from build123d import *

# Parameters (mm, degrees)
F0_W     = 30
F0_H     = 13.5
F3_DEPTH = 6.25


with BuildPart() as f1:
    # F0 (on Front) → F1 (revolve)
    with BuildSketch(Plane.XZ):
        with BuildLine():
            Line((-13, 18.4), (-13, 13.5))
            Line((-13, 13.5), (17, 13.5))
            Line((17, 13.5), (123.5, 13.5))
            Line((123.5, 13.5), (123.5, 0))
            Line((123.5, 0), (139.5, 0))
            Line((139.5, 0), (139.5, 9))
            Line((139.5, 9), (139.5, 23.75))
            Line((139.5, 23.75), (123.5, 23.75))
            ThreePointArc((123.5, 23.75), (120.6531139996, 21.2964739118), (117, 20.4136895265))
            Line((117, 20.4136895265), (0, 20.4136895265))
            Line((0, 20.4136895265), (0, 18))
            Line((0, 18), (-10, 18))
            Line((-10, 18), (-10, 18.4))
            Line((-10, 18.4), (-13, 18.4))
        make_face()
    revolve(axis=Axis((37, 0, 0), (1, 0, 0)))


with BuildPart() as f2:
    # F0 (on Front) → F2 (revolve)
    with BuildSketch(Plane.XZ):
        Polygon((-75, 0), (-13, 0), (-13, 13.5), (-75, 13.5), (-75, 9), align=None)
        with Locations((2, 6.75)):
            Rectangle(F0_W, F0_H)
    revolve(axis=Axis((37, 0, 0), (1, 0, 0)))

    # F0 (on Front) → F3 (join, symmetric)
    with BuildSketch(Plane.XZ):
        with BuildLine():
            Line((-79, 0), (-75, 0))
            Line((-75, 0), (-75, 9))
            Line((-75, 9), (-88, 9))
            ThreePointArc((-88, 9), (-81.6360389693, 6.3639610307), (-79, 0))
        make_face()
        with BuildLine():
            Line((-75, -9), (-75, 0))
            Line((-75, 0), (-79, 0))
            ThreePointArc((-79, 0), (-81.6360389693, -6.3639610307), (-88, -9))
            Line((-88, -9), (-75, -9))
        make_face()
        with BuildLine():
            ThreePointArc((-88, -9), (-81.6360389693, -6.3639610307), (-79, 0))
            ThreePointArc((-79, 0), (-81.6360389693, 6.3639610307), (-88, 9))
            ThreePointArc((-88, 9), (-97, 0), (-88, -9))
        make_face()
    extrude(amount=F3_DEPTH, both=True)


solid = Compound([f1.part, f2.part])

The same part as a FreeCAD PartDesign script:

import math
import FreeCAD as App
import Part
import Sketcher
Q = App.Units.Quantity


def add_polygon(sketch, points):
    """Adds a closed chain of lines whose ends are joined by coincident constraints."""
    first, n = sketch.GeometryCount, len(points)
    for a, b in zip(points, points[1:] + points[:1]):
        sketch.addGeometry(Part.LineSegment(App.Vector(*a, 0), App.Vector(*b, 0)), False)
    for i in range(n):
        sketch.addConstraint(Sketcher.Constraint("Coincident", first + i, 2, first + (i + 1) % n, 1))

doc = App.newDocument("Part")
body = doc.addObject("PartDesign::Body", "Body")

# Sketch on XZ plane
sketch1 = doc.addObject("Sketcher::SketchObject", "Sketch")
body.addObject(sketch1)
sketch1.AttachmentSupport = (doc.XZ_Plane, [""])
sketch1.MapMode = "FlatFace"
sketch1.addGeometry(Part.LineSegment(App.Vector(-13, 18.4, 0), App.Vector(-13, 13.5, 0)), False)
sketch1.addGeometry(Part.LineSegment(App.Vector(-13, 13.5, 0), App.Vector(123.5, 13.5, 0)), False)
sketch1.addGeometry(Part.LineSegment(App.Vector(123.5, 13.5, 0), App.Vector(123.5, 0, 0)), False)
sketch1.addGeometry(Part.LineSegment(App.Vector(123.5, 0, 0), App.Vector(139.5, 0, 0)), False)
sketch1.addGeometry(Part.LineSegment(App.Vector(139.5, 0, 0), App.Vector(139.5, 23.75, 0)), False)
sketch1.addGeometry(Part.LineSegment(App.Vector(139.5, 23.75, 0), App.Vector(123.5, 23.75, 0)), False)
sketch1.addGeometry(Part.ArcOfCircle(Part.Circle(App.Vector(117, 28.41, 0), App.Vector(0, 0, 1), 8), math.radians(-90), math.radians(-36)), False)
sketch1.addGeometry(Part.LineSegment(App.Vector(117, 20.41, 0), App.Vector(0, 20.41, 0)), False)
sketch1.addGeometry(Part.LineSegment(App.Vector(0, 20.41, 0), App.Vector(0, 18, 0)), False)
sketch1.addGeometry(Part.LineSegment(App.Vector(0, 18, 0), App.Vector(-10, 18, 0)), False)
sketch1.addGeometry(Part.LineSegment(App.Vector(-10, 18, 0), App.Vector(-10, 18.4, 0)), False)
sketch1.addGeometry(Part.LineSegment(App.Vector(-10, 18.4, 0), App.Vector(-13, 18.4, 0)), False)
sketch1.addConstraint(Sketcher.Constraint("Coincident", 0, 2, 1, 1))
sketch1.addConstraint(Sketcher.Constraint("Coincident", 1, 2, 2, 1))
sketch1.addConstraint(Sketcher.Constraint("Coincident", 2, 2, 3, 1))
sketch1.addConstraint(Sketcher.Constraint("Coincident", 3, 2, 4, 1))
sketch1.addConstraint(Sketcher.Constraint("Coincident", 4, 2, 5, 1))
sketch1.addConstraint(Sketcher.Constraint("Coincident", 5, 2, 6, 2))
sketch1.addConstraint(Sketcher.Constraint("Tangent", 6, 1, 7, 1))
sketch1.addConstraint(Sketcher.Constraint("Coincident", 7, 2, 8, 1))
sketch1.addConstraint(Sketcher.Constraint("Coincident", 8, 2, 9, 1))
sketch1.addConstraint(Sketcher.Constraint("Coincident", 9, 2, 10, 1))
sketch1.addConstraint(Sketcher.Constraint("Coincident", 10, 2, 11, 1))
sketch1.addConstraint(Sketcher.Constraint("Coincident", 11, 2, 0, 1))
sketch1.addConstraint(Sketcher.Constraint("Vertical", 0))
sketch1.addConstraint(Sketcher.Constraint("Horizontal", 1))
sketch1.addConstraint(Sketcher.Constraint("Vertical", 2))
sketch1.addConstraint(Sketcher.Constraint("Horizontal", 3))
sketch1.addConstraint(Sketcher.Constraint("Vertical", 4))
sketch1.addConstraint(Sketcher.Constraint("Horizontal", 5))
sketch1.addConstraint(Sketcher.Constraint("Horizontal", 7))
sketch1.addConstraint(Sketcher.Constraint("Vertical", 8))
sketch1.addConstraint(Sketcher.Constraint("Horizontal", 9))
sketch1.addConstraint(Sketcher.Constraint("Vertical", 10))
sketch1.addConstraint(Sketcher.Constraint("Horizontal", 11))
sketch1.addConstraint(Sketcher.Constraint("PointOnObject", 2, 2, -1))
sketch1.addConstraint(Sketcher.Constraint("PointOnObject", 7, 2, -2))
sketch1.addConstraint(Sketcher.Constraint("Vertical", 2, 2, 5, 2))
sketch1.addConstraint(Sketcher.Constraint("Radius", 6, Q("8 mm")))
sketch1.addConstraint(Sketcher.Constraint("DistanceX", 3, 1, 3, 2, Q("16 mm")))
sketch1.addConstraint(Sketcher.Constraint("DistanceX", 7, 2, 7, 1, Q("117 mm")))
sketch1.addConstraint(Sketcher.Constraint("DistanceX", 9, 2, 9, 1, Q("10 mm")))
sketch1.addConstraint(Sketcher.Constraint("DistanceX", 11, 2, 11, 1, Q("3 mm")))
sketch1.addConstraint(Sketcher.Constraint("DistanceX", 1, 1, 1, 2, Q("136.5 mm")))
sketch1.addConstraint(Sketcher.Constraint("DistanceY", 0, 2, 0, 1, Q("4.9 mm")))
sketch1.addConstraint(Sketcher.Constraint("DistanceY", 2, 2, 2, 1, Q("13.5 mm")))
sketch1.addConstraint(Sketcher.Constraint("DistanceY", 10, 1, 10, 2, Q("0.4 mm")))
sketch1.addConstraint(Sketcher.Constraint("DistanceY", 4, 1, 4, 2, Q("23.75 mm")))
revolution = doc.addObject("PartDesign::Revolution", "Revolution")
body.addObject(revolution)
revolution.Profile = sketch1
revolution.ReferenceAxis = (sketch1, ["H_Axis"])
revolution.Angle = 360
body2 = doc.addObject("PartDesign::Body", "Body001")

# Sketch on XZ plane
sketch2 = doc.addObject("Sketcher::SketchObject", "Sketch001")
body2.addObject(sketch2)
sketch2.AttachmentSupport = (doc.getObject("XZ_Plane001"), [""])
sketch2.MapMode = "FlatFace"
add_polygon(sketch2, [(-75, 0), (17, 0), (17, 14), (-75, 14)])  # lines 0-3
sketch2.addConstraint(Sketcher.Constraint("Horizontal", 0))
sketch2.addConstraint(Sketcher.Constraint("Vertical", 1))
sketch2.addConstraint(Sketcher.Constraint("Horizontal", 2))
sketch2.addConstraint(Sketcher.Constraint("Vertical", 3))
sketch2.addConstraint(Sketcher.Constraint("PointOnObject", 0, 2, -1))
sketch2.addConstraint(Sketcher.Constraint("DistanceX", 0, 1, 0, 2, Q("92 mm")))
sketch2.addConstraint(Sketcher.Constraint("DistanceY", 1, 1, 1, 2, Q("13.5 mm")))
sketch2.addConstraint(Sketcher.Constraint("DistanceX", -1, 1, 0, 2, Q("17 mm")))
revolution2 = doc.addObject("PartDesign::Revolution", "Revolution001")
body2.addObject(revolution2)
revolution2.Profile = sketch2
revolution2.ReferenceAxis = (sketch2, ["H_Axis"])
revolution2.Angle = 360

# Sketch on XZ plane
sketch3 = doc.addObject("Sketcher::SketchObject", "Sketch002")
body2.addObject(sketch3)
sketch3.AttachmentSupport = (doc.getObject("XZ_Plane001"), [""])
sketch3.MapMode = "FlatFace"
sketch3.addGeometry(Part.LineSegment(App.Vector(-75, 9, 0), App.Vector(-88, 9, 0)), False)
sketch3.addGeometry(Part.ArcOfCircle(Part.Circle(App.Vector(-88, 0, 0), App.Vector(0, 0, 1), 9), math.radians(90), math.radians(270)), False)
sketch3.addGeometry(Part.LineSegment(App.Vector(-88, -9, 0), App.Vector(-75, -9, 0)), False)
sketch3.addGeometry(Part.LineSegment(App.Vector(-75, -9, 0), App.Vector(-75, 9, 0)), False)
sketch3.addConstraint(Sketcher.Constraint("Tangent", 0, 2, 1, 1))
sketch3.addConstraint(Sketcher.Constraint("Tangent", 1, 2, 2, 1))
sketch3.addConstraint(Sketcher.Constraint("Coincident", 2, 2, 3, 1))
sketch3.addConstraint(Sketcher.Constraint("Coincident", 3, 2, 0, 1))
sketch3.addConstraint(Sketcher.Constraint("Horizontal", 0))
sketch3.addConstraint(Sketcher.Constraint("Horizontal", 2))
sketch3.addConstraint(Sketcher.Constraint("Vertical", 3))
sketch3.addConstraint(Sketcher.Constraint("PointOnObject", 1, 3, -1))
sketch3.addConstraint(Sketcher.Constraint("Radius", 1, Q("9 mm")))
sketch3.addConstraint(Sketcher.Constraint("DistanceX", 0, 2, 0, 1, Q("13 mm")))
sketch3.addConstraint(Sketcher.Constraint("DistanceX", 1, 3, -1, 1, Q("88 mm")))
pad1 = doc.addObject("PartDesign::Pad", "Pad")
body2.addObject(pad1)
pad1.Profile = sketch3
pad1.Length = 12.5
pad1.Midplane = True

doc.recompute()
